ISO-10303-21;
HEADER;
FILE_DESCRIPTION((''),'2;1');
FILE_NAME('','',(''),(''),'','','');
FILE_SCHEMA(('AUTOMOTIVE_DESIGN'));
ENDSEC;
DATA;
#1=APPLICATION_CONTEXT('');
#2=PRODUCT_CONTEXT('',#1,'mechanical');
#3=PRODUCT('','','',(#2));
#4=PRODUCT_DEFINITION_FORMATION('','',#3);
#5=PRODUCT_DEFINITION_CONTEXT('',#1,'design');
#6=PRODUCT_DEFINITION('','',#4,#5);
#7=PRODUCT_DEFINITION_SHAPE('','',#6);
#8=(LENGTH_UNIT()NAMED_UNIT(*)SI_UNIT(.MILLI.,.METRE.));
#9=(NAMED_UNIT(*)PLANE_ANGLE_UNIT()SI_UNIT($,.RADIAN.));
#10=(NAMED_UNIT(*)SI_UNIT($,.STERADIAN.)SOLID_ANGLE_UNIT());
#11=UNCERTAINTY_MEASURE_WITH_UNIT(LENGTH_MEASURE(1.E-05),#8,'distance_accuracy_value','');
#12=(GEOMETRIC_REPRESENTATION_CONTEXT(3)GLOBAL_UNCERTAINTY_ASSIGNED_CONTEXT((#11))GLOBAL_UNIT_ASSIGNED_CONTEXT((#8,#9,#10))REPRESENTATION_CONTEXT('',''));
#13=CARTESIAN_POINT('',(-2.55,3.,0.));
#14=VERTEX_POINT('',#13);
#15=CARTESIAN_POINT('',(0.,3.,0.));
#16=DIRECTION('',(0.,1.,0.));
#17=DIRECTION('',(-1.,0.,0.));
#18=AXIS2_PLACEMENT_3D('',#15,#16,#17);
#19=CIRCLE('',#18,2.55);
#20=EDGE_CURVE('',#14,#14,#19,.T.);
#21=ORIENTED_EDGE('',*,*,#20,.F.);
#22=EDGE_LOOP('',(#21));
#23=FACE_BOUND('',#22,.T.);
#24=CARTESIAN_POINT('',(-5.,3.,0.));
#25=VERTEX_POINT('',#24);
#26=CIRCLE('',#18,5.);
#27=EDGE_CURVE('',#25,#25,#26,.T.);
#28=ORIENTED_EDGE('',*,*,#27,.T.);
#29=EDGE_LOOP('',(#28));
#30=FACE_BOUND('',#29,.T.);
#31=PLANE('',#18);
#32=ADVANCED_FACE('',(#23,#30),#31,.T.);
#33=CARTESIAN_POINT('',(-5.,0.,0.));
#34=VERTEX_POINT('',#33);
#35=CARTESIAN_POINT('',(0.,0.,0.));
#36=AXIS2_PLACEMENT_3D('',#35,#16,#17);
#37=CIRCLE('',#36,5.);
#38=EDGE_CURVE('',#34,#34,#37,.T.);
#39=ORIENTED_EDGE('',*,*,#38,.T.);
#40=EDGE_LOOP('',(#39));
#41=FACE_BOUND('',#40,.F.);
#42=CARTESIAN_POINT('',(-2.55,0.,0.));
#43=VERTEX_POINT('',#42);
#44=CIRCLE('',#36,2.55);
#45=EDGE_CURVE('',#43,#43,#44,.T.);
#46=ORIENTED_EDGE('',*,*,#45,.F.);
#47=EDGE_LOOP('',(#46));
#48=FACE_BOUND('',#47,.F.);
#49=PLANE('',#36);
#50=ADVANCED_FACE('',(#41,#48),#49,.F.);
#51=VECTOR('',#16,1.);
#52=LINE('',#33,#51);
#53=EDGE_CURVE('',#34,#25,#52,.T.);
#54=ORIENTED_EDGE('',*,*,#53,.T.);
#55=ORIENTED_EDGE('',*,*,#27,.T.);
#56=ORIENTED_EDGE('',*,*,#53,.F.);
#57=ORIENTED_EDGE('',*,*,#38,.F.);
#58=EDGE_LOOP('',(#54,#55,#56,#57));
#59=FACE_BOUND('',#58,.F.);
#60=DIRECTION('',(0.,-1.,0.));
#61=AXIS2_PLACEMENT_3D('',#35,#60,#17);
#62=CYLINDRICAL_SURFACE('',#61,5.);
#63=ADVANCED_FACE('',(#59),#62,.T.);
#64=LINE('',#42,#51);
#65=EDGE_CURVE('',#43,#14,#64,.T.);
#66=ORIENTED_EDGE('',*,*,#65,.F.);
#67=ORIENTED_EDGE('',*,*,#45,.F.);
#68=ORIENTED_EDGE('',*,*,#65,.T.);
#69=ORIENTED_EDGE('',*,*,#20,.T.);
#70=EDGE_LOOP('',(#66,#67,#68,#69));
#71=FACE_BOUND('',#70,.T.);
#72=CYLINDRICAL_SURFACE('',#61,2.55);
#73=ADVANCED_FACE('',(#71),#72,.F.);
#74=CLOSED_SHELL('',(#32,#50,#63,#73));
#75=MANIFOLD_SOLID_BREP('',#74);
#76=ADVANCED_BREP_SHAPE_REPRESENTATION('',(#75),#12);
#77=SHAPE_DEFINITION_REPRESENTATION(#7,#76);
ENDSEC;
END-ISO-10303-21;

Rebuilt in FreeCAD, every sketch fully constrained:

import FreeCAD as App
import Part
import Sketcher

doc = App.newDocument("Part")
params = doc.addObject("Spreadsheet::Sheet", "Params")
for row, (alias, value) in enumerate([
    ("sketch1_diameter", "10 mm"),
    ("sketch1_diameter2", "5.1 mm"),
    ("pad1_length", "3 mm"),
], start=1):
    params.set(f"A{row}", alias)
    params.set(f"B{row}", "=" + value)
    params.setAlias(f"B{row}", alias)

body = doc.addObject("PartDesign::Body", "Body")

# Sketch on XZ plane
sketch1 = body.newObject("Sketcher::SketchObject", "Sketch")
sketch1.AttachmentSupport = (doc.getObject("XZ_Plane"), [""])
sketch1.MapMode = "FlatFace"
sketch1.addGeometry([
    Part.Circle(App.Vector(0, 0, 0), App.Vector(0, 0, 1), 5),
    Part.Circle(App.Vector(0, 0, 0), App.Vector(0, 0, 1), 2.5),
], False)
sketch1.addConstraint([
    Sketcher.Constraint("Coincident", 0, 3, -1, 1),
    Sketcher.Constraint("Coincident", 1, 3, -1, 1),
    Sketcher.Constraint("Diameter", 0, 10.0),
    Sketcher.Constraint("Diameter", 1, 5.1),
])
sketch1.setExpression("Constraints[2]", "Params.sketch1_diameter")
sketch1.setExpression("Constraints[3]", "Params.sketch1_diameter2")
pad1 = body.newObject("PartDesign::Pad", "Pad")
pad1.Profile = sketch1
pad1.setExpression("Length", "Params.pad1_length")
pad1.Reversed = True

doc.recompute()
